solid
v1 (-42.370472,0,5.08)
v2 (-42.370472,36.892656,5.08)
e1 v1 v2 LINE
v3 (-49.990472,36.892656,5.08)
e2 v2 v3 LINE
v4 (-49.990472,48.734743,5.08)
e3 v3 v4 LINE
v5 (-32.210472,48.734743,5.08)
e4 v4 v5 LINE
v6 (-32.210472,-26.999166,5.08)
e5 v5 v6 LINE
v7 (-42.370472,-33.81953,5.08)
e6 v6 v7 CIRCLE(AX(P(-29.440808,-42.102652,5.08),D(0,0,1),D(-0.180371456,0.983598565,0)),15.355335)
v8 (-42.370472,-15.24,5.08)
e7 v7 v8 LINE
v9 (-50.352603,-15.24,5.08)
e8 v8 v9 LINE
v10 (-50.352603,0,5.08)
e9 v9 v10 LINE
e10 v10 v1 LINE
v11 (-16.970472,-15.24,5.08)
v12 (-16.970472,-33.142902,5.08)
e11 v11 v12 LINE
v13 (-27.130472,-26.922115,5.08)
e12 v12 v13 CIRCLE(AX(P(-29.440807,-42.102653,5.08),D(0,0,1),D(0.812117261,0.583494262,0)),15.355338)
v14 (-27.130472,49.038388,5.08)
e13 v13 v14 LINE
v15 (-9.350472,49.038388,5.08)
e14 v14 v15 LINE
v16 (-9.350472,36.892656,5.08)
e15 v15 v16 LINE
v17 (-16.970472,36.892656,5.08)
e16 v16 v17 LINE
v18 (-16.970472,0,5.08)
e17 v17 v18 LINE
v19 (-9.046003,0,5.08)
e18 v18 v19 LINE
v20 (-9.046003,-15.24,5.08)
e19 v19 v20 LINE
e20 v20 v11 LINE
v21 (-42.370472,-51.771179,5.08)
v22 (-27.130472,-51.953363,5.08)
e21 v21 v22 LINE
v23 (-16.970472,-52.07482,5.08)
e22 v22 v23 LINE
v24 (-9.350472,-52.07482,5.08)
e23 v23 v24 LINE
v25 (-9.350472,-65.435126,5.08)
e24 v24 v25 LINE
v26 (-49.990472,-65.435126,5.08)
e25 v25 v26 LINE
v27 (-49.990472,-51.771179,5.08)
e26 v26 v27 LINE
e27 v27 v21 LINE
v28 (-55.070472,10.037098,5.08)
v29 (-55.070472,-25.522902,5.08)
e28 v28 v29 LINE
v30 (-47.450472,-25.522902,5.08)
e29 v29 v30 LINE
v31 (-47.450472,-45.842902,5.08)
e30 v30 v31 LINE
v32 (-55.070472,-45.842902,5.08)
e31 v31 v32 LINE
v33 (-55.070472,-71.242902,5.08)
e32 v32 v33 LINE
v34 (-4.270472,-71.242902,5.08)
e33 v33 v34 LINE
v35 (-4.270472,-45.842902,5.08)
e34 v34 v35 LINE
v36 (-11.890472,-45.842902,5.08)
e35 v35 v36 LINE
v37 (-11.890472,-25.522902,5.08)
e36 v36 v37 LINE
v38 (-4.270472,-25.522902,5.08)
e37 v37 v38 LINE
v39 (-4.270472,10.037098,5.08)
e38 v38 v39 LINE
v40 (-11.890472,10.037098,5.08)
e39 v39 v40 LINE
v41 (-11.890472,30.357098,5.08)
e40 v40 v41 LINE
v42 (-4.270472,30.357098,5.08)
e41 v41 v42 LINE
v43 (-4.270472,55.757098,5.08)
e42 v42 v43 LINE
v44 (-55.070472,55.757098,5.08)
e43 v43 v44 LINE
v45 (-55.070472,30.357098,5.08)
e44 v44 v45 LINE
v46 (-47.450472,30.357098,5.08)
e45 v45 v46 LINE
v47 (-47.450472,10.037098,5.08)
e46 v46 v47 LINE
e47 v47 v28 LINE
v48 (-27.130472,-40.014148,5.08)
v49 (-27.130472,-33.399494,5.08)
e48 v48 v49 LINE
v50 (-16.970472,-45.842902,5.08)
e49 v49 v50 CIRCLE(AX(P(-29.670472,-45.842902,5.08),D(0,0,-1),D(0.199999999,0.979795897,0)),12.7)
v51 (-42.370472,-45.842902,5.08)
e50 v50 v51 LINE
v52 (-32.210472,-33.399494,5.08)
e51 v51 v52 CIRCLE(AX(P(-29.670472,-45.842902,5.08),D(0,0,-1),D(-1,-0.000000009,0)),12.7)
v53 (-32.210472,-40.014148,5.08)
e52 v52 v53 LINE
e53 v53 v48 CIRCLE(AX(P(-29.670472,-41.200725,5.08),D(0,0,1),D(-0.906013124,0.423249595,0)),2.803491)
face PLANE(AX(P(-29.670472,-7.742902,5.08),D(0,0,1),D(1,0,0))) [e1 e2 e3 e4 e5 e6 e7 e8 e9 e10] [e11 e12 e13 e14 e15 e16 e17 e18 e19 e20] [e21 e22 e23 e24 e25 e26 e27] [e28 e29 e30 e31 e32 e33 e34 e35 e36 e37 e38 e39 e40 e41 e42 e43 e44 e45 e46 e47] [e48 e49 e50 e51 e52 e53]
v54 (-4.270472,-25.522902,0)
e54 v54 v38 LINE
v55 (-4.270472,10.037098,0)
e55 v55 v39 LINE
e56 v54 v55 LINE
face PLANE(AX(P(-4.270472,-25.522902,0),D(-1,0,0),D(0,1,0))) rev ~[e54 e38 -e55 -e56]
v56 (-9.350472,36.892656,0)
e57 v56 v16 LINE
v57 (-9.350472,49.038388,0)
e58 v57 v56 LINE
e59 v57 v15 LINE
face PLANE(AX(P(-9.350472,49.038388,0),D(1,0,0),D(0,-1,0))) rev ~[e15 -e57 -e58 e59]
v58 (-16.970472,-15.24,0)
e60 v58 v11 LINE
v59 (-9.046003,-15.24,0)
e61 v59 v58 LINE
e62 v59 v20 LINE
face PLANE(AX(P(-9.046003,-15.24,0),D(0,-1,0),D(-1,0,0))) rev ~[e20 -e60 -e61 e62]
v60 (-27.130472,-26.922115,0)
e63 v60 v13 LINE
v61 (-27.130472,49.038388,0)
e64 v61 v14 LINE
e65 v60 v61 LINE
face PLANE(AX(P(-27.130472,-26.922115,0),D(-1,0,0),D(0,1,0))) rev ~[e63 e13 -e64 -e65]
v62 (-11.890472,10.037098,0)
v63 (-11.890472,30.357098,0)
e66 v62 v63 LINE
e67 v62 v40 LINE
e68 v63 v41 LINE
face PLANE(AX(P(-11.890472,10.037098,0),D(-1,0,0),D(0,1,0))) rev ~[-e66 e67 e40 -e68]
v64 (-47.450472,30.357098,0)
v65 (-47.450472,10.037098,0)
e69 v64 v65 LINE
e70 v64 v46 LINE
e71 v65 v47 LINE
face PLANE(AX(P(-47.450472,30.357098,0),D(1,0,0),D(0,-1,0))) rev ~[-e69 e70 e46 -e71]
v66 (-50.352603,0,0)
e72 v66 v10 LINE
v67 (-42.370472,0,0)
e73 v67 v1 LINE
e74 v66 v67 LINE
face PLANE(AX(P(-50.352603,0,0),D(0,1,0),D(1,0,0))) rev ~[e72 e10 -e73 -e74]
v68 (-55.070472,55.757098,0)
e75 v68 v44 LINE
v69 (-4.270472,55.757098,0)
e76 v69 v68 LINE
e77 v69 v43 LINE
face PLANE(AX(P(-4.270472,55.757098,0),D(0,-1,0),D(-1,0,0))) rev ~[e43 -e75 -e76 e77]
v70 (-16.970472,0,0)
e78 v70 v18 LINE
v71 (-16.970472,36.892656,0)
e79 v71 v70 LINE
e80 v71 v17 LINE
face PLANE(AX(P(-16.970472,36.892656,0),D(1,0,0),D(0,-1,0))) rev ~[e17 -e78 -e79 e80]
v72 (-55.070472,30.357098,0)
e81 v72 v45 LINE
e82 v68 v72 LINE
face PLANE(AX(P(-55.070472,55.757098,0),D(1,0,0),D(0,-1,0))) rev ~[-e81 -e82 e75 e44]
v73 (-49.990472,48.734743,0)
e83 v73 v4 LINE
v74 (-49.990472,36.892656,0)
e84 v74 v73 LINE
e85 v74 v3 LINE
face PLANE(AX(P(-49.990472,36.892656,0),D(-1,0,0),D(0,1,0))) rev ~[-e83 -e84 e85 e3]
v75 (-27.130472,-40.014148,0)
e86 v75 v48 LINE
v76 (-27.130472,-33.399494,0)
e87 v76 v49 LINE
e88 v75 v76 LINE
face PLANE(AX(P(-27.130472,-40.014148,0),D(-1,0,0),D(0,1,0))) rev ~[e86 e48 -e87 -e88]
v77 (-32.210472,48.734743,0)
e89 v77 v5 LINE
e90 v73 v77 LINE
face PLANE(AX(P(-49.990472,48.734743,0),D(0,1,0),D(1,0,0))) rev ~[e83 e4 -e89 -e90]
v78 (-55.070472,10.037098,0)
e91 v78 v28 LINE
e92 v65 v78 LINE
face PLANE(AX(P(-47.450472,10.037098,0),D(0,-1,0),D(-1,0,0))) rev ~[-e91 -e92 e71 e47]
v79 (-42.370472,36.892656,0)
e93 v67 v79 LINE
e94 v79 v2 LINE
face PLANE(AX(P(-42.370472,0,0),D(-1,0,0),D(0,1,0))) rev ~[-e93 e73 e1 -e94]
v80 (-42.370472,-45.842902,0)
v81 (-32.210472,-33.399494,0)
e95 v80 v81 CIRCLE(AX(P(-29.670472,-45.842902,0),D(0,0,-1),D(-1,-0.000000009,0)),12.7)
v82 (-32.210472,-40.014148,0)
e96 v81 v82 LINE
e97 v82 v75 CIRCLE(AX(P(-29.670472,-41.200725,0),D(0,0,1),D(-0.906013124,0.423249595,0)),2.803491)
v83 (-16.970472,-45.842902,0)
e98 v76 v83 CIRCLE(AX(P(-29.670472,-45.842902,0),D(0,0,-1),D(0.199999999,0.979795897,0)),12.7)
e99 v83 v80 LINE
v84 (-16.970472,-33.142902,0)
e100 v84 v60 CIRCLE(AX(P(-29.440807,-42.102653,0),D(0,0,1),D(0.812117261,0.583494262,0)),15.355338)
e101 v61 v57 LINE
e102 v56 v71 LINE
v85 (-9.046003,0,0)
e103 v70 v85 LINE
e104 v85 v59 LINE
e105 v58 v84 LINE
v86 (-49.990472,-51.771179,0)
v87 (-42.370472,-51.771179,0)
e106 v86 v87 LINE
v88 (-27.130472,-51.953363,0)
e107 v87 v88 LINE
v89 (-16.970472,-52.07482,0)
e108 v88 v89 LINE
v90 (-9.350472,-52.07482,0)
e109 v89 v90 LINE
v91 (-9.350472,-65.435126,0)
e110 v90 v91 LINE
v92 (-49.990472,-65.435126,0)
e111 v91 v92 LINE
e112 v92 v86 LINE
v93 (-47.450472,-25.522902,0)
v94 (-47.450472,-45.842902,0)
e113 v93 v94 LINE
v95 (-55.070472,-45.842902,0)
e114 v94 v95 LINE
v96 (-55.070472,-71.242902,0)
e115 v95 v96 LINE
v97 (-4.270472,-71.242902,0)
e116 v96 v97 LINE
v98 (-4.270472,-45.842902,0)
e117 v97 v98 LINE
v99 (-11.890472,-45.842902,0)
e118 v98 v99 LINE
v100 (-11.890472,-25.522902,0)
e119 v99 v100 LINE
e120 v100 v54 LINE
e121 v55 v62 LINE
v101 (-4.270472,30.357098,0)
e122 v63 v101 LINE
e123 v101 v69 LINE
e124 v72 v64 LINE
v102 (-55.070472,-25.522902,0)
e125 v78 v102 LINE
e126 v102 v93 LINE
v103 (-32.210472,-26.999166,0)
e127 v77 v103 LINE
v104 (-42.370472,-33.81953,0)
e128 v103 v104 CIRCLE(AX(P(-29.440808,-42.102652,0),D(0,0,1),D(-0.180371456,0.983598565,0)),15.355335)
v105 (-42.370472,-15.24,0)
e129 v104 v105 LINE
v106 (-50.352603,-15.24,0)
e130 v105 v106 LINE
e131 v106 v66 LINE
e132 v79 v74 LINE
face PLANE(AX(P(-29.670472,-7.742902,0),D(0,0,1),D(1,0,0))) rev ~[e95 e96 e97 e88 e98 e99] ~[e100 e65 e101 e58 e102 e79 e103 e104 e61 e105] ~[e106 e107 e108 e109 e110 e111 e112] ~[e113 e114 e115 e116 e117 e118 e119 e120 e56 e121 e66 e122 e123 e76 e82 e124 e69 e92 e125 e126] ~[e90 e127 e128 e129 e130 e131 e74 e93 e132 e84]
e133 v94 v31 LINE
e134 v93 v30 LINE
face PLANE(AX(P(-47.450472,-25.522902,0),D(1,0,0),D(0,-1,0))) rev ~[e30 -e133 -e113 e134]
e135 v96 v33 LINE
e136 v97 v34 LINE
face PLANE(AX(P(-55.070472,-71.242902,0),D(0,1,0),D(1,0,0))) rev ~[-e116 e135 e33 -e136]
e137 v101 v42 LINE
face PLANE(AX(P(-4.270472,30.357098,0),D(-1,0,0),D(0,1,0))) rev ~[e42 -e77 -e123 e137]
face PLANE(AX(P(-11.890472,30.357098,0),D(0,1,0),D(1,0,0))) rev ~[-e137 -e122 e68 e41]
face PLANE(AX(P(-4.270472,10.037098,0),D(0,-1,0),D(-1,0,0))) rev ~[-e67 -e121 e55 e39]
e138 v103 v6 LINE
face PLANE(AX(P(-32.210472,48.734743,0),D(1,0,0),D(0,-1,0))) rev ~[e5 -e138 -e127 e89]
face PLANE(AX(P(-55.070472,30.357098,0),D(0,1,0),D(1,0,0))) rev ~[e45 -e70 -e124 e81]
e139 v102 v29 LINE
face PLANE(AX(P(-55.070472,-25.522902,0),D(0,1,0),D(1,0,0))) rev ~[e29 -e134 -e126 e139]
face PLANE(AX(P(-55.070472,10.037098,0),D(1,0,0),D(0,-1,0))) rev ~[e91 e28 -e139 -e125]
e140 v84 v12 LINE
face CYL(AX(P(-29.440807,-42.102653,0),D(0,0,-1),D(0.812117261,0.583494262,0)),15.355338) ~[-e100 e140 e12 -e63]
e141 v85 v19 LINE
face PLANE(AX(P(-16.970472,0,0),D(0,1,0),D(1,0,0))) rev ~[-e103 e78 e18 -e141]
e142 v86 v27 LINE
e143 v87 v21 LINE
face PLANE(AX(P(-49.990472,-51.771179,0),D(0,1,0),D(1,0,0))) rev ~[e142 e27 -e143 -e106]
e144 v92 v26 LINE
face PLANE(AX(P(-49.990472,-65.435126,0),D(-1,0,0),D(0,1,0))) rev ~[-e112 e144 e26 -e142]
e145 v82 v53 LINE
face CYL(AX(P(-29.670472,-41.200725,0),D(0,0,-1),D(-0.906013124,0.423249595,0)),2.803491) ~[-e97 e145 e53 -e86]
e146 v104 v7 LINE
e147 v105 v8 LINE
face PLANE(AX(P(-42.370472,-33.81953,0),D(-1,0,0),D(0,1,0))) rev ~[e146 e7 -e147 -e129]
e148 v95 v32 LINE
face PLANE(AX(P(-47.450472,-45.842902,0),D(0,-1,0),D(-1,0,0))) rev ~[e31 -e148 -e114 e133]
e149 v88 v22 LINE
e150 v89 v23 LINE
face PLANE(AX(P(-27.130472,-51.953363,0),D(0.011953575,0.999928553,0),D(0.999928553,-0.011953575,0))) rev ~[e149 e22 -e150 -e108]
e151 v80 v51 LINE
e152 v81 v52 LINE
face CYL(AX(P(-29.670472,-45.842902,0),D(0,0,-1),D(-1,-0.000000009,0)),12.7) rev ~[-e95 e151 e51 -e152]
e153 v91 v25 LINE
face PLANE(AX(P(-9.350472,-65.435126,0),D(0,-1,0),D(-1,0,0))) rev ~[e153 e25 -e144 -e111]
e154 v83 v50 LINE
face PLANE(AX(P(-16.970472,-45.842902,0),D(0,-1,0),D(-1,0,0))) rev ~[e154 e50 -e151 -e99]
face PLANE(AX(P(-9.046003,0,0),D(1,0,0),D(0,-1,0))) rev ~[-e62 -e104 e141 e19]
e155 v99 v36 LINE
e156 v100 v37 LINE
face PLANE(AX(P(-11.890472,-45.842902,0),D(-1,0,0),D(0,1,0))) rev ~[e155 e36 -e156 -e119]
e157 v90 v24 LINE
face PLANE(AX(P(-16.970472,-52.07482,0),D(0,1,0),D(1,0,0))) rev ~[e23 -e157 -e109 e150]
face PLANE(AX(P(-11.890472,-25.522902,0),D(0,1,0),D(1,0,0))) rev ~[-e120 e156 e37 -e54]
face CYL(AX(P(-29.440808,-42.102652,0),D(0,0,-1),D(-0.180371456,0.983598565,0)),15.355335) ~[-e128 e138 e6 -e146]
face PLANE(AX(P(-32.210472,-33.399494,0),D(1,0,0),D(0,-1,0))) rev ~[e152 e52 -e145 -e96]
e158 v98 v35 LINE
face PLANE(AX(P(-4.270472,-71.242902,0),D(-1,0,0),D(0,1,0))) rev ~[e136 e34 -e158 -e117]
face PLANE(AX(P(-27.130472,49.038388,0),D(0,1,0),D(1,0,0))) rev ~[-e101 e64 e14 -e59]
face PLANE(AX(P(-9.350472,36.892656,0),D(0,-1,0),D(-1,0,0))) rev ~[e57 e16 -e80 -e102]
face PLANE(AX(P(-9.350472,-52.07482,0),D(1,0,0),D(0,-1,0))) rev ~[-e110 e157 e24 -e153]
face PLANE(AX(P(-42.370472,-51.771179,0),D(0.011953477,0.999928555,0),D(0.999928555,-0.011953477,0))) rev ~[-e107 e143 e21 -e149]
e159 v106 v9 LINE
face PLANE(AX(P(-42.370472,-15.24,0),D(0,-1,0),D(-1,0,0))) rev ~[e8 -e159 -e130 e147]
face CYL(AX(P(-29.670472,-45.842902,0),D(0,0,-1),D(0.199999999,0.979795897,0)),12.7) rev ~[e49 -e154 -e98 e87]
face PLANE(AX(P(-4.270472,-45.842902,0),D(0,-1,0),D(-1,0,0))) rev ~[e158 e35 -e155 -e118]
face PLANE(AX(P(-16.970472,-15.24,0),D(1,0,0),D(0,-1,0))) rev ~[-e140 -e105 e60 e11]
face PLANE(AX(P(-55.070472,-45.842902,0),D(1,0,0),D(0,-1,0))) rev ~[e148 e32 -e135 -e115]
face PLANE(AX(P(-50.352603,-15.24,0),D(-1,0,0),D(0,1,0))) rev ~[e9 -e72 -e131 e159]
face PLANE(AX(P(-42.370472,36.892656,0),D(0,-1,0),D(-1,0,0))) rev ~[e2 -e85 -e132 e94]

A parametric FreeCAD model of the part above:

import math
import FreeCAD as App
import Part
import Sketcher
Q = App.Units.Quantity


def add_polygon(sketch, points):
    """Adds a closed chain of lines whose ends are joined by coincident constraints."""
    first, n = sketch.GeometryCount, len(points)
    for a, b in zip(points, points[1:] + points[:1]):
        sketch.addGeometry(Part.LineSegment(App.Vector(*a, 0), App.Vector(*b, 0)), False)
    for i in range(n):
        sketch.addConstraint(Sketcher.Constraint("Coincident", first + i, 2, first + (i + 1) % n, 1))

doc = App.newDocument("Part")
body = doc.addObject("PartDesign::Body", "Body")

sketch1 = body.newObject("Sketcher::SketchObject", "Sketch")
sketch1.AttachmentSupport = (doc.getObject("XY_Plane"), [""])
sketch1.MapMode = "FlatFace"
add_polygon(sketch1, [(-4.3, 55.8), (-55.1, 55.8), (-55.1, 30.4), (-47.5, 30.4), (-47.5, 10), (-55.1, 10), (-55.1, -25.5), (-47.5, -25.5), (-47.5, -45.8), (-55.1, -45.8), (-55.1, -71.2), (-4.3, -71.2), (-4.3, -45.8), (-11.9, -45.8), (-11.9, -25.5), (-4.3, -25.5), (-4.3, 10), (-11.9, 10), (-11.9, 30.4), (-4.3, 30.4)])
add_polygon(sketch1, [(-50, -65.4), (-50, -51.8), (-42.4, -51.8), (-27.1, -52), (-17, -52.1), (-9.4, -52.1), (-9.4, -65.4)])
sketch1.addGeometry(Part.ArcOfCircle(Part.Circle(App.Vector(-29.7, -45.8, 0), App.Vector(0, 0, 1), 12.7), math.radians(0), math.radians(78)), False)
sketch1.addGeometry(Part.LineSegment(App.Vector(-17, -45.8, 0), App.Vector(-42.4, -45.8, 0)), False)
sketch1.addGeometry(Part.ArcOfCircle(Part.Circle(App.Vector(-29.7, -45.8, 0), App.Vector(0, 0, 1), 12.7), math.radians(102), math.radians(180)), False)
sketch1.addGeometry(Part.LineSegment(App.Vector(-32.2, -33.4, 0), App.Vector(-32.2, -40, 0)), False)
sketch1.addGeometry(Part.ArcOfCircle(Part.Circle(App.Vector(-29.7, -41.2, 0), App.Vector(0, 0, 1), 2.8), math.radians(155), math.radians(385)), False)
sketch1.addGeometry(Part.LineSegment(App.Vector(-27.1, -40, 0), App.Vector(-27.1, -33.4, 0)), False)
sketch1.addGeometry(Part.LineSegment(App.Vector(-50, 36.9, 0), App.Vector(-50, 48.7, 0)), False)
sketch1.addGeometry(Part.LineSegment(App.Vector(-50, 48.7, 0), App.Vector(-32.2, 48.7, 0)), False)
sketch1.addGeometry(Part.LineSegment(App.Vector(-32.2, 48.7, 0), App.Vector(-32.2, -27, 0)), False)
sketch1.addGeometry(Part.ArcOfCircle(Part.Circle(App.Vector(-29.4, -42.1, 0), App.Vector(0, 0, 1), 15.4), math.radians(100), math.radians(147)), False)
sketch1.addGeometry(Part.LineSegment(App.Vector(-42.4, -33.8, 0), App.Vector(-42.4, -15.2, 0)), False)
sketch1.addGeometry(Part.LineSegment(App.Vector(-42.4, -15.2, 0), App.Vector(-50.4, -15.2, 0)), False)
sketch1.addGeometry(Part.LineSegment(App.Vector(-50.4, -15.2, 0), App.Vector(-50.4, 0, 0)), False)
sketch1.addGeometry(Part.LineSegment(App.Vector(-50.4, 0, 0), App.Vector(-42.4, 0, 0)), False)
sketch1.addGeometry(Part.LineSegment(App.Vector(-42.4, 0, 0), App.Vector(-42.4, 36.9, 0)), False)
sketch1.addGeometry(Part.LineSegment(App.Vector(-42.4, 36.9, 0), App.Vector(-50, 36.9, 0)), False)
sketch1.addGeometry(Part.ArcOfCircle(Part.Circle(App.Vector(-29.4, -42.1, 0), App.Vector(0, 0, 1), 15.4), math.radians(36), math.radians(81)), False)
sketch1.addGeometry(Part.LineSegment(App.Vector(-27.1, -26.9, 0), App.Vector(-27.1, 49, 0)), False)
sketch1.addGeometry(Part.LineSegment(App.Vector(-27.1, 49, 0), App.Vector(-9.4, 49, 0)), False)
sketch1.addGeometry(Part.LineSegment(App.Vector(-9.4, 49, 0), App.Vector(-9.4, 36.9, 0)), False)
sketch1.addGeometry(Part.LineSegment(App.Vector(-9.4, 36.9, 0), App.Vector(-17, 36.9, 0)), False)
sketch1.addGeometry(Part.LineSegment(App.Vector(-17, 36.9, 0), App.Vector(-17, 0, 0)), False)
sketch1.addGeometry(Part.LineSegment(App.Vector(-17, 0, 0), App.Vector(-9, 0, 0)), False)
sketch1.addGeometry(Part.LineSegment(App.Vector(-9, 0, 0), App.Vector(-9, -15.2, 0)), False)
sketch1.addGeometry(Part.LineSegment(App.Vector(-9, -15.2, 0), App.Vector(-17, -15.2, 0)), False)
sketch1.addGeometry(Part.LineSegment(App.Vector(-17, -15.2, 0), App.Vector(-17, -33.1, 0)), False)
sketch1.addConstraint([
    Sketcher.Constraint("Coincident", 27, 1, 28, 1),
    Sketcher.Constraint("Coincident", 28, 2, 29, 2),
    Sketcher.Constraint("Coincident", 29, 1, 30, 1),
    Sketcher.Constraint("Coincident", 30, 2, 31, 1),
    Sketcher.Constraint("Coincident", 31, 2, 32, 1),
    Sketcher.Constraint("Coincident", 32, 2, 27, 2),
    Sketcher.Constraint("Coincident", 33, 2, 34, 1),
    Sketcher.Constraint("Coincident", 34, 2, 35, 1),
    Sketcher.Constraint("Coincident", 35, 2, 36, 1),
    Sketcher.Constraint("Coincident", 36, 2, 37, 1),
    Sketcher.Constraint("Coincident", 37, 2, 38, 1),
    Sketcher.Constraint("Coincident", 38, 2, 39, 1),
    Sketcher.Constraint("Coincident", 39, 2, 40, 1),
    Sketcher.Constraint("Coincident", 40, 2, 41, 1),
    Sketcher.Constraint("Coincident", 41, 2, 42, 1),
    Sketcher.Constraint("Coincident", 42, 2, 33, 1),
    Sketcher.Constraint("Coincident", 43, 2, 44, 1),
    Sketcher.Constraint("Coincident", 44, 2, 45, 1),
    Sketcher.Constraint("Coincident", 45, 2, 46, 1),
    Sketcher.Constraint("Coincident", 46, 2, 47, 1),
    Sketcher.Constraint("Coincident", 47, 2, 48, 1),
    Sketcher.Constraint("Coincident", 48, 2, 49, 1),
    Sketcher.Constraint("Coincident", 49, 2, 50, 1),
    Sketcher.Constraint("Coincident", 50, 2, 51, 1),
    Sketcher.Constraint("Coincident", 51, 2, 52, 1),
    Sketcher.Constraint("Coincident", 52, 2, 43, 1),
    Sketcher.Constraint("Horizontal", 0),
    Sketcher.Constraint("Vertical", 1),
    Sketcher.Constraint("Horizontal", 2),
    Sketcher.Constraint("Vertical", 3),
    Sketcher.Constraint("Horizontal", 4),
    Sketcher.Constraint("Vertical", 5),
    Sketcher.Constraint("Horizontal", 6),
    Sketcher.Constraint("Vertical", 7),
    Sketcher.Constraint("Horizontal", 8),
    Sketcher.Constraint("Vertical", 9),
    Sketcher.Constraint("Horizontal", 10),
    Sketcher.Constraint("Vertical", 11),
    Sketcher.Constraint("Horizontal", 12),
    Sketcher.Constraint("Vertical", 13),
    Sketcher.Constraint("Horizontal", 14),
    Sketcher.Constraint("Vertical", 15),
    Sketcher.Constraint("Horizontal", 16),
    Sketcher.Constraint("Vertical", 17),
    Sketcher.Constraint("Horizontal", 18),
    Sketcher.Constraint("Vertical", 19),
    Sketcher.Constraint("Vertical", 20),
    Sketcher.Constraint("Horizontal", 21),
    Sketcher.Constraint("Horizontal", 24),
    Sketcher.Constraint("Vertical", 25),
    Sketcher.Constraint("Horizontal", 26),
    Sketcher.Constraint("Horizontal", 28),
    Sketcher.Constraint("Vertical", 30),
    Sketcher.Constraint("Vertical", 32),
    Sketcher.Constraint("Vertical", 33),
    Sketcher.Constraint("Horizontal", 34),
    Sketcher.Constraint("Vertical", 35),
    Sketcher.Constraint("Vertical", 37),
    Sketcher.Constraint("Horizontal", 38),
    Sketcher.Constraint("Vertical", 39),
    Sketcher.Constraint("Horizontal", 40),
    Sketcher.Constraint("Vertical", 41),
    Sketcher.Constraint("Horizontal", 42),
    Sketcher.Constraint("Vertical", 44),
    Sketcher.Constraint("Horizontal", 45),
    Sketcher.Constraint("Vertical", 46),
    Sketcher.Constraint("Horizontal", 47),
    Sketcher.Constraint("Vertical", 48),
    Sketcher.Constraint("Horizontal", 49),
    Sketcher.Constraint("Vertical", 50),
    Sketcher.Constraint("Horizontal", 51),
    Sketcher.Constraint("Vertical", 52),
    Sketcher.Constraint("Coincident", 29, 3, 27, 3),
    Sketcher.Constraint("Coincident", 43, 3, 36, 3),
    Sketcher.Constraint("Equal", 27, 29),
    Sketcher.Constraint("PointOnObject", 39, 2, -1),
    Sketcher.Constraint("PointOnObject", 48, 2, -1),
    Sketcher.Constraint("Parallel", 22, 23),
    Sketcher.Constraint("Horizontal", 29, 3, 7, 2),
    Sketcher.Constraint("Horizontal", 8, 2, 11, 2),
    Sketcher.Constraint("Horizontal", 6, 2, 13, 2),
    Sketcher.Constraint("Horizontal", 4, 2, 15, 2),
    Sketcher.Constraint("Horizontal", 2, 2, 17, 2),
    Sketcher.Constraint("Horizontal", 12, 2, 27, 1),
    Sketcher.Constraint("Horizontal", 30, 2, 31, 2),
    Sketcher.Constraint("Horizontal", 29, 1, 32, 2),
    Sketcher.Constraint("Horizontal", 42, 2, 46, 2),
    Sketcher.Constraint("Horizontal", 38, 2, 50, 2),
    Sketcher.Constraint("Vertical", 1, 2, 4, 2),
    Sketcher.Constraint("Vertical", 3, 2, 6, 2),
    Sketcher.Constraint("Vertical", 5, 2, 8, 2),
    Sketcher.Constraint("Vertical", 11, 2, 14, 2),
    Sketcher.Constraint("Vertical", 13, 2, 16, 2),
    Sketcher.Constraint("Vertical", 15, 2, 18, 2),
    Sketcher.Constraint("Vertical", 23, 2, 27, 1),
    Sketcher.Constraint("Vertical", 21, 2, 28, 2),
    Sketcher.Constraint("Vertical", 22, 2, 31, 2),
    Sketcher.Constraint("Vertical", 26, 2, 33, 2),
    Sketcher.Constraint("Vertical", 30, 2, 34, 2),
    Sketcher.Constraint("Vertical", 28, 2, 36, 2),
    Sketcher.Constraint("Vertical", 37, 2, 40, 2),
    Sketcher.Constraint("Vertical", 32, 2, 43, 2),
    Sketcher.Constraint("Vertical", 25, 2, 45, 2),
    Sketcher.Constraint("Vertical", 27, 1, 47, 2),
    Sketcher.Constraint("Vertical", 48, 2, 51, 2),
    Sketcher.Constraint("Equal", 8, 12),
    Sketcher.Constraint("Equal", 18, 21),
    Sketcher.Constraint("Equal", 21, 24),
    Sketcher.Constraint("Equal", 28, 1),
    Sketcher.Constraint("Equal", 3, 7),
    Sketcher.Constraint("Equal", 1, 9),
    Sketcher.Constraint("Radius", 27, Q("0.5 in")),
    Sketcher.Constraint("DistanceX", 0, 2, 0, 1, Q("2 in")),
    Sketcher.Constraint("DistanceX", 2, 1, 2, 2, Q("0.3 in")),
    Sketcher.Constraint("DistanceX", 34, 1, 34, 2, Q("0.7 in")),
    Sketcher.Constraint("DistanceY", 3, 2, 3, 1, Q("0.8 in")),
    Sketcher.Constraint("DistanceY", 5, 2, 5, 1, Q("1.4 in")),
    Sketcher.Constraint("DistanceY", 39, 1, 39, 2, Q("0.6 in")),
    Sketcher.Constraint("DistanceX", 0, 2, 31, 3, Q("1 in")),
    Sketcher.Constraint("DistanceY", 52, 2, 13, 2, Q("0.3 in")),
    Sketcher.Constraint("Radius", 31, Q("2.803491 mm")),
    Sketcher.Constraint("DistanceY", 52, 2, 52, 1, Q("17.902902 mm")),
    Sketcher.Constraint("Radius", 36, Q("15.355335 mm")),
    Sketcher.Constraint("Radius", 43, Q("15.355338 mm")),
    Sketcher.Constraint("DistanceX", 38, 2, 38, 1, Q("7.982131 mm")),
    Sketcher.Constraint("DistanceX", 49, 1, 49, 2, Q("7.924469 mm")),
    Sketcher.Constraint("DistanceY", 35, 2, 35, 1, Q("75.733909 mm")),
    Sketcher.Constraint("DistanceY", 37, 1, 37, 2, Q("18.57953 mm")),
    Sketcher.Constraint("DistanceY", 46, 2, 46, 1, Q("12.145732 mm")),
    Sketcher.Constraint("Distance", 22, Q("15.241089 mm")),
    Sketcher.Constraint("DistanceY", 20, 1, 20, 2, Q("13.663947 mm")),
    Sketcher.Constraint("DistanceY", 30, 2, 30, 1, Q("6.614654 mm")),
    Sketcher.Constraint("DistanceY", 33, 1, 33, 2, Q("11.842087 mm")),
    Sketcher.Constraint("DistanceX", 27, 3, -1, 1, Q("29.670472 mm")),
    Sketcher.Constraint("DistanceY", 20, 2, -1, 1, Q("51.771179 mm")),
])
pad1 = body.newObject("PartDesign::Pad", "Pad")
pad1.Profile = sketch1
pad1.Length = Q("0.2 in")

doc.recompute()
